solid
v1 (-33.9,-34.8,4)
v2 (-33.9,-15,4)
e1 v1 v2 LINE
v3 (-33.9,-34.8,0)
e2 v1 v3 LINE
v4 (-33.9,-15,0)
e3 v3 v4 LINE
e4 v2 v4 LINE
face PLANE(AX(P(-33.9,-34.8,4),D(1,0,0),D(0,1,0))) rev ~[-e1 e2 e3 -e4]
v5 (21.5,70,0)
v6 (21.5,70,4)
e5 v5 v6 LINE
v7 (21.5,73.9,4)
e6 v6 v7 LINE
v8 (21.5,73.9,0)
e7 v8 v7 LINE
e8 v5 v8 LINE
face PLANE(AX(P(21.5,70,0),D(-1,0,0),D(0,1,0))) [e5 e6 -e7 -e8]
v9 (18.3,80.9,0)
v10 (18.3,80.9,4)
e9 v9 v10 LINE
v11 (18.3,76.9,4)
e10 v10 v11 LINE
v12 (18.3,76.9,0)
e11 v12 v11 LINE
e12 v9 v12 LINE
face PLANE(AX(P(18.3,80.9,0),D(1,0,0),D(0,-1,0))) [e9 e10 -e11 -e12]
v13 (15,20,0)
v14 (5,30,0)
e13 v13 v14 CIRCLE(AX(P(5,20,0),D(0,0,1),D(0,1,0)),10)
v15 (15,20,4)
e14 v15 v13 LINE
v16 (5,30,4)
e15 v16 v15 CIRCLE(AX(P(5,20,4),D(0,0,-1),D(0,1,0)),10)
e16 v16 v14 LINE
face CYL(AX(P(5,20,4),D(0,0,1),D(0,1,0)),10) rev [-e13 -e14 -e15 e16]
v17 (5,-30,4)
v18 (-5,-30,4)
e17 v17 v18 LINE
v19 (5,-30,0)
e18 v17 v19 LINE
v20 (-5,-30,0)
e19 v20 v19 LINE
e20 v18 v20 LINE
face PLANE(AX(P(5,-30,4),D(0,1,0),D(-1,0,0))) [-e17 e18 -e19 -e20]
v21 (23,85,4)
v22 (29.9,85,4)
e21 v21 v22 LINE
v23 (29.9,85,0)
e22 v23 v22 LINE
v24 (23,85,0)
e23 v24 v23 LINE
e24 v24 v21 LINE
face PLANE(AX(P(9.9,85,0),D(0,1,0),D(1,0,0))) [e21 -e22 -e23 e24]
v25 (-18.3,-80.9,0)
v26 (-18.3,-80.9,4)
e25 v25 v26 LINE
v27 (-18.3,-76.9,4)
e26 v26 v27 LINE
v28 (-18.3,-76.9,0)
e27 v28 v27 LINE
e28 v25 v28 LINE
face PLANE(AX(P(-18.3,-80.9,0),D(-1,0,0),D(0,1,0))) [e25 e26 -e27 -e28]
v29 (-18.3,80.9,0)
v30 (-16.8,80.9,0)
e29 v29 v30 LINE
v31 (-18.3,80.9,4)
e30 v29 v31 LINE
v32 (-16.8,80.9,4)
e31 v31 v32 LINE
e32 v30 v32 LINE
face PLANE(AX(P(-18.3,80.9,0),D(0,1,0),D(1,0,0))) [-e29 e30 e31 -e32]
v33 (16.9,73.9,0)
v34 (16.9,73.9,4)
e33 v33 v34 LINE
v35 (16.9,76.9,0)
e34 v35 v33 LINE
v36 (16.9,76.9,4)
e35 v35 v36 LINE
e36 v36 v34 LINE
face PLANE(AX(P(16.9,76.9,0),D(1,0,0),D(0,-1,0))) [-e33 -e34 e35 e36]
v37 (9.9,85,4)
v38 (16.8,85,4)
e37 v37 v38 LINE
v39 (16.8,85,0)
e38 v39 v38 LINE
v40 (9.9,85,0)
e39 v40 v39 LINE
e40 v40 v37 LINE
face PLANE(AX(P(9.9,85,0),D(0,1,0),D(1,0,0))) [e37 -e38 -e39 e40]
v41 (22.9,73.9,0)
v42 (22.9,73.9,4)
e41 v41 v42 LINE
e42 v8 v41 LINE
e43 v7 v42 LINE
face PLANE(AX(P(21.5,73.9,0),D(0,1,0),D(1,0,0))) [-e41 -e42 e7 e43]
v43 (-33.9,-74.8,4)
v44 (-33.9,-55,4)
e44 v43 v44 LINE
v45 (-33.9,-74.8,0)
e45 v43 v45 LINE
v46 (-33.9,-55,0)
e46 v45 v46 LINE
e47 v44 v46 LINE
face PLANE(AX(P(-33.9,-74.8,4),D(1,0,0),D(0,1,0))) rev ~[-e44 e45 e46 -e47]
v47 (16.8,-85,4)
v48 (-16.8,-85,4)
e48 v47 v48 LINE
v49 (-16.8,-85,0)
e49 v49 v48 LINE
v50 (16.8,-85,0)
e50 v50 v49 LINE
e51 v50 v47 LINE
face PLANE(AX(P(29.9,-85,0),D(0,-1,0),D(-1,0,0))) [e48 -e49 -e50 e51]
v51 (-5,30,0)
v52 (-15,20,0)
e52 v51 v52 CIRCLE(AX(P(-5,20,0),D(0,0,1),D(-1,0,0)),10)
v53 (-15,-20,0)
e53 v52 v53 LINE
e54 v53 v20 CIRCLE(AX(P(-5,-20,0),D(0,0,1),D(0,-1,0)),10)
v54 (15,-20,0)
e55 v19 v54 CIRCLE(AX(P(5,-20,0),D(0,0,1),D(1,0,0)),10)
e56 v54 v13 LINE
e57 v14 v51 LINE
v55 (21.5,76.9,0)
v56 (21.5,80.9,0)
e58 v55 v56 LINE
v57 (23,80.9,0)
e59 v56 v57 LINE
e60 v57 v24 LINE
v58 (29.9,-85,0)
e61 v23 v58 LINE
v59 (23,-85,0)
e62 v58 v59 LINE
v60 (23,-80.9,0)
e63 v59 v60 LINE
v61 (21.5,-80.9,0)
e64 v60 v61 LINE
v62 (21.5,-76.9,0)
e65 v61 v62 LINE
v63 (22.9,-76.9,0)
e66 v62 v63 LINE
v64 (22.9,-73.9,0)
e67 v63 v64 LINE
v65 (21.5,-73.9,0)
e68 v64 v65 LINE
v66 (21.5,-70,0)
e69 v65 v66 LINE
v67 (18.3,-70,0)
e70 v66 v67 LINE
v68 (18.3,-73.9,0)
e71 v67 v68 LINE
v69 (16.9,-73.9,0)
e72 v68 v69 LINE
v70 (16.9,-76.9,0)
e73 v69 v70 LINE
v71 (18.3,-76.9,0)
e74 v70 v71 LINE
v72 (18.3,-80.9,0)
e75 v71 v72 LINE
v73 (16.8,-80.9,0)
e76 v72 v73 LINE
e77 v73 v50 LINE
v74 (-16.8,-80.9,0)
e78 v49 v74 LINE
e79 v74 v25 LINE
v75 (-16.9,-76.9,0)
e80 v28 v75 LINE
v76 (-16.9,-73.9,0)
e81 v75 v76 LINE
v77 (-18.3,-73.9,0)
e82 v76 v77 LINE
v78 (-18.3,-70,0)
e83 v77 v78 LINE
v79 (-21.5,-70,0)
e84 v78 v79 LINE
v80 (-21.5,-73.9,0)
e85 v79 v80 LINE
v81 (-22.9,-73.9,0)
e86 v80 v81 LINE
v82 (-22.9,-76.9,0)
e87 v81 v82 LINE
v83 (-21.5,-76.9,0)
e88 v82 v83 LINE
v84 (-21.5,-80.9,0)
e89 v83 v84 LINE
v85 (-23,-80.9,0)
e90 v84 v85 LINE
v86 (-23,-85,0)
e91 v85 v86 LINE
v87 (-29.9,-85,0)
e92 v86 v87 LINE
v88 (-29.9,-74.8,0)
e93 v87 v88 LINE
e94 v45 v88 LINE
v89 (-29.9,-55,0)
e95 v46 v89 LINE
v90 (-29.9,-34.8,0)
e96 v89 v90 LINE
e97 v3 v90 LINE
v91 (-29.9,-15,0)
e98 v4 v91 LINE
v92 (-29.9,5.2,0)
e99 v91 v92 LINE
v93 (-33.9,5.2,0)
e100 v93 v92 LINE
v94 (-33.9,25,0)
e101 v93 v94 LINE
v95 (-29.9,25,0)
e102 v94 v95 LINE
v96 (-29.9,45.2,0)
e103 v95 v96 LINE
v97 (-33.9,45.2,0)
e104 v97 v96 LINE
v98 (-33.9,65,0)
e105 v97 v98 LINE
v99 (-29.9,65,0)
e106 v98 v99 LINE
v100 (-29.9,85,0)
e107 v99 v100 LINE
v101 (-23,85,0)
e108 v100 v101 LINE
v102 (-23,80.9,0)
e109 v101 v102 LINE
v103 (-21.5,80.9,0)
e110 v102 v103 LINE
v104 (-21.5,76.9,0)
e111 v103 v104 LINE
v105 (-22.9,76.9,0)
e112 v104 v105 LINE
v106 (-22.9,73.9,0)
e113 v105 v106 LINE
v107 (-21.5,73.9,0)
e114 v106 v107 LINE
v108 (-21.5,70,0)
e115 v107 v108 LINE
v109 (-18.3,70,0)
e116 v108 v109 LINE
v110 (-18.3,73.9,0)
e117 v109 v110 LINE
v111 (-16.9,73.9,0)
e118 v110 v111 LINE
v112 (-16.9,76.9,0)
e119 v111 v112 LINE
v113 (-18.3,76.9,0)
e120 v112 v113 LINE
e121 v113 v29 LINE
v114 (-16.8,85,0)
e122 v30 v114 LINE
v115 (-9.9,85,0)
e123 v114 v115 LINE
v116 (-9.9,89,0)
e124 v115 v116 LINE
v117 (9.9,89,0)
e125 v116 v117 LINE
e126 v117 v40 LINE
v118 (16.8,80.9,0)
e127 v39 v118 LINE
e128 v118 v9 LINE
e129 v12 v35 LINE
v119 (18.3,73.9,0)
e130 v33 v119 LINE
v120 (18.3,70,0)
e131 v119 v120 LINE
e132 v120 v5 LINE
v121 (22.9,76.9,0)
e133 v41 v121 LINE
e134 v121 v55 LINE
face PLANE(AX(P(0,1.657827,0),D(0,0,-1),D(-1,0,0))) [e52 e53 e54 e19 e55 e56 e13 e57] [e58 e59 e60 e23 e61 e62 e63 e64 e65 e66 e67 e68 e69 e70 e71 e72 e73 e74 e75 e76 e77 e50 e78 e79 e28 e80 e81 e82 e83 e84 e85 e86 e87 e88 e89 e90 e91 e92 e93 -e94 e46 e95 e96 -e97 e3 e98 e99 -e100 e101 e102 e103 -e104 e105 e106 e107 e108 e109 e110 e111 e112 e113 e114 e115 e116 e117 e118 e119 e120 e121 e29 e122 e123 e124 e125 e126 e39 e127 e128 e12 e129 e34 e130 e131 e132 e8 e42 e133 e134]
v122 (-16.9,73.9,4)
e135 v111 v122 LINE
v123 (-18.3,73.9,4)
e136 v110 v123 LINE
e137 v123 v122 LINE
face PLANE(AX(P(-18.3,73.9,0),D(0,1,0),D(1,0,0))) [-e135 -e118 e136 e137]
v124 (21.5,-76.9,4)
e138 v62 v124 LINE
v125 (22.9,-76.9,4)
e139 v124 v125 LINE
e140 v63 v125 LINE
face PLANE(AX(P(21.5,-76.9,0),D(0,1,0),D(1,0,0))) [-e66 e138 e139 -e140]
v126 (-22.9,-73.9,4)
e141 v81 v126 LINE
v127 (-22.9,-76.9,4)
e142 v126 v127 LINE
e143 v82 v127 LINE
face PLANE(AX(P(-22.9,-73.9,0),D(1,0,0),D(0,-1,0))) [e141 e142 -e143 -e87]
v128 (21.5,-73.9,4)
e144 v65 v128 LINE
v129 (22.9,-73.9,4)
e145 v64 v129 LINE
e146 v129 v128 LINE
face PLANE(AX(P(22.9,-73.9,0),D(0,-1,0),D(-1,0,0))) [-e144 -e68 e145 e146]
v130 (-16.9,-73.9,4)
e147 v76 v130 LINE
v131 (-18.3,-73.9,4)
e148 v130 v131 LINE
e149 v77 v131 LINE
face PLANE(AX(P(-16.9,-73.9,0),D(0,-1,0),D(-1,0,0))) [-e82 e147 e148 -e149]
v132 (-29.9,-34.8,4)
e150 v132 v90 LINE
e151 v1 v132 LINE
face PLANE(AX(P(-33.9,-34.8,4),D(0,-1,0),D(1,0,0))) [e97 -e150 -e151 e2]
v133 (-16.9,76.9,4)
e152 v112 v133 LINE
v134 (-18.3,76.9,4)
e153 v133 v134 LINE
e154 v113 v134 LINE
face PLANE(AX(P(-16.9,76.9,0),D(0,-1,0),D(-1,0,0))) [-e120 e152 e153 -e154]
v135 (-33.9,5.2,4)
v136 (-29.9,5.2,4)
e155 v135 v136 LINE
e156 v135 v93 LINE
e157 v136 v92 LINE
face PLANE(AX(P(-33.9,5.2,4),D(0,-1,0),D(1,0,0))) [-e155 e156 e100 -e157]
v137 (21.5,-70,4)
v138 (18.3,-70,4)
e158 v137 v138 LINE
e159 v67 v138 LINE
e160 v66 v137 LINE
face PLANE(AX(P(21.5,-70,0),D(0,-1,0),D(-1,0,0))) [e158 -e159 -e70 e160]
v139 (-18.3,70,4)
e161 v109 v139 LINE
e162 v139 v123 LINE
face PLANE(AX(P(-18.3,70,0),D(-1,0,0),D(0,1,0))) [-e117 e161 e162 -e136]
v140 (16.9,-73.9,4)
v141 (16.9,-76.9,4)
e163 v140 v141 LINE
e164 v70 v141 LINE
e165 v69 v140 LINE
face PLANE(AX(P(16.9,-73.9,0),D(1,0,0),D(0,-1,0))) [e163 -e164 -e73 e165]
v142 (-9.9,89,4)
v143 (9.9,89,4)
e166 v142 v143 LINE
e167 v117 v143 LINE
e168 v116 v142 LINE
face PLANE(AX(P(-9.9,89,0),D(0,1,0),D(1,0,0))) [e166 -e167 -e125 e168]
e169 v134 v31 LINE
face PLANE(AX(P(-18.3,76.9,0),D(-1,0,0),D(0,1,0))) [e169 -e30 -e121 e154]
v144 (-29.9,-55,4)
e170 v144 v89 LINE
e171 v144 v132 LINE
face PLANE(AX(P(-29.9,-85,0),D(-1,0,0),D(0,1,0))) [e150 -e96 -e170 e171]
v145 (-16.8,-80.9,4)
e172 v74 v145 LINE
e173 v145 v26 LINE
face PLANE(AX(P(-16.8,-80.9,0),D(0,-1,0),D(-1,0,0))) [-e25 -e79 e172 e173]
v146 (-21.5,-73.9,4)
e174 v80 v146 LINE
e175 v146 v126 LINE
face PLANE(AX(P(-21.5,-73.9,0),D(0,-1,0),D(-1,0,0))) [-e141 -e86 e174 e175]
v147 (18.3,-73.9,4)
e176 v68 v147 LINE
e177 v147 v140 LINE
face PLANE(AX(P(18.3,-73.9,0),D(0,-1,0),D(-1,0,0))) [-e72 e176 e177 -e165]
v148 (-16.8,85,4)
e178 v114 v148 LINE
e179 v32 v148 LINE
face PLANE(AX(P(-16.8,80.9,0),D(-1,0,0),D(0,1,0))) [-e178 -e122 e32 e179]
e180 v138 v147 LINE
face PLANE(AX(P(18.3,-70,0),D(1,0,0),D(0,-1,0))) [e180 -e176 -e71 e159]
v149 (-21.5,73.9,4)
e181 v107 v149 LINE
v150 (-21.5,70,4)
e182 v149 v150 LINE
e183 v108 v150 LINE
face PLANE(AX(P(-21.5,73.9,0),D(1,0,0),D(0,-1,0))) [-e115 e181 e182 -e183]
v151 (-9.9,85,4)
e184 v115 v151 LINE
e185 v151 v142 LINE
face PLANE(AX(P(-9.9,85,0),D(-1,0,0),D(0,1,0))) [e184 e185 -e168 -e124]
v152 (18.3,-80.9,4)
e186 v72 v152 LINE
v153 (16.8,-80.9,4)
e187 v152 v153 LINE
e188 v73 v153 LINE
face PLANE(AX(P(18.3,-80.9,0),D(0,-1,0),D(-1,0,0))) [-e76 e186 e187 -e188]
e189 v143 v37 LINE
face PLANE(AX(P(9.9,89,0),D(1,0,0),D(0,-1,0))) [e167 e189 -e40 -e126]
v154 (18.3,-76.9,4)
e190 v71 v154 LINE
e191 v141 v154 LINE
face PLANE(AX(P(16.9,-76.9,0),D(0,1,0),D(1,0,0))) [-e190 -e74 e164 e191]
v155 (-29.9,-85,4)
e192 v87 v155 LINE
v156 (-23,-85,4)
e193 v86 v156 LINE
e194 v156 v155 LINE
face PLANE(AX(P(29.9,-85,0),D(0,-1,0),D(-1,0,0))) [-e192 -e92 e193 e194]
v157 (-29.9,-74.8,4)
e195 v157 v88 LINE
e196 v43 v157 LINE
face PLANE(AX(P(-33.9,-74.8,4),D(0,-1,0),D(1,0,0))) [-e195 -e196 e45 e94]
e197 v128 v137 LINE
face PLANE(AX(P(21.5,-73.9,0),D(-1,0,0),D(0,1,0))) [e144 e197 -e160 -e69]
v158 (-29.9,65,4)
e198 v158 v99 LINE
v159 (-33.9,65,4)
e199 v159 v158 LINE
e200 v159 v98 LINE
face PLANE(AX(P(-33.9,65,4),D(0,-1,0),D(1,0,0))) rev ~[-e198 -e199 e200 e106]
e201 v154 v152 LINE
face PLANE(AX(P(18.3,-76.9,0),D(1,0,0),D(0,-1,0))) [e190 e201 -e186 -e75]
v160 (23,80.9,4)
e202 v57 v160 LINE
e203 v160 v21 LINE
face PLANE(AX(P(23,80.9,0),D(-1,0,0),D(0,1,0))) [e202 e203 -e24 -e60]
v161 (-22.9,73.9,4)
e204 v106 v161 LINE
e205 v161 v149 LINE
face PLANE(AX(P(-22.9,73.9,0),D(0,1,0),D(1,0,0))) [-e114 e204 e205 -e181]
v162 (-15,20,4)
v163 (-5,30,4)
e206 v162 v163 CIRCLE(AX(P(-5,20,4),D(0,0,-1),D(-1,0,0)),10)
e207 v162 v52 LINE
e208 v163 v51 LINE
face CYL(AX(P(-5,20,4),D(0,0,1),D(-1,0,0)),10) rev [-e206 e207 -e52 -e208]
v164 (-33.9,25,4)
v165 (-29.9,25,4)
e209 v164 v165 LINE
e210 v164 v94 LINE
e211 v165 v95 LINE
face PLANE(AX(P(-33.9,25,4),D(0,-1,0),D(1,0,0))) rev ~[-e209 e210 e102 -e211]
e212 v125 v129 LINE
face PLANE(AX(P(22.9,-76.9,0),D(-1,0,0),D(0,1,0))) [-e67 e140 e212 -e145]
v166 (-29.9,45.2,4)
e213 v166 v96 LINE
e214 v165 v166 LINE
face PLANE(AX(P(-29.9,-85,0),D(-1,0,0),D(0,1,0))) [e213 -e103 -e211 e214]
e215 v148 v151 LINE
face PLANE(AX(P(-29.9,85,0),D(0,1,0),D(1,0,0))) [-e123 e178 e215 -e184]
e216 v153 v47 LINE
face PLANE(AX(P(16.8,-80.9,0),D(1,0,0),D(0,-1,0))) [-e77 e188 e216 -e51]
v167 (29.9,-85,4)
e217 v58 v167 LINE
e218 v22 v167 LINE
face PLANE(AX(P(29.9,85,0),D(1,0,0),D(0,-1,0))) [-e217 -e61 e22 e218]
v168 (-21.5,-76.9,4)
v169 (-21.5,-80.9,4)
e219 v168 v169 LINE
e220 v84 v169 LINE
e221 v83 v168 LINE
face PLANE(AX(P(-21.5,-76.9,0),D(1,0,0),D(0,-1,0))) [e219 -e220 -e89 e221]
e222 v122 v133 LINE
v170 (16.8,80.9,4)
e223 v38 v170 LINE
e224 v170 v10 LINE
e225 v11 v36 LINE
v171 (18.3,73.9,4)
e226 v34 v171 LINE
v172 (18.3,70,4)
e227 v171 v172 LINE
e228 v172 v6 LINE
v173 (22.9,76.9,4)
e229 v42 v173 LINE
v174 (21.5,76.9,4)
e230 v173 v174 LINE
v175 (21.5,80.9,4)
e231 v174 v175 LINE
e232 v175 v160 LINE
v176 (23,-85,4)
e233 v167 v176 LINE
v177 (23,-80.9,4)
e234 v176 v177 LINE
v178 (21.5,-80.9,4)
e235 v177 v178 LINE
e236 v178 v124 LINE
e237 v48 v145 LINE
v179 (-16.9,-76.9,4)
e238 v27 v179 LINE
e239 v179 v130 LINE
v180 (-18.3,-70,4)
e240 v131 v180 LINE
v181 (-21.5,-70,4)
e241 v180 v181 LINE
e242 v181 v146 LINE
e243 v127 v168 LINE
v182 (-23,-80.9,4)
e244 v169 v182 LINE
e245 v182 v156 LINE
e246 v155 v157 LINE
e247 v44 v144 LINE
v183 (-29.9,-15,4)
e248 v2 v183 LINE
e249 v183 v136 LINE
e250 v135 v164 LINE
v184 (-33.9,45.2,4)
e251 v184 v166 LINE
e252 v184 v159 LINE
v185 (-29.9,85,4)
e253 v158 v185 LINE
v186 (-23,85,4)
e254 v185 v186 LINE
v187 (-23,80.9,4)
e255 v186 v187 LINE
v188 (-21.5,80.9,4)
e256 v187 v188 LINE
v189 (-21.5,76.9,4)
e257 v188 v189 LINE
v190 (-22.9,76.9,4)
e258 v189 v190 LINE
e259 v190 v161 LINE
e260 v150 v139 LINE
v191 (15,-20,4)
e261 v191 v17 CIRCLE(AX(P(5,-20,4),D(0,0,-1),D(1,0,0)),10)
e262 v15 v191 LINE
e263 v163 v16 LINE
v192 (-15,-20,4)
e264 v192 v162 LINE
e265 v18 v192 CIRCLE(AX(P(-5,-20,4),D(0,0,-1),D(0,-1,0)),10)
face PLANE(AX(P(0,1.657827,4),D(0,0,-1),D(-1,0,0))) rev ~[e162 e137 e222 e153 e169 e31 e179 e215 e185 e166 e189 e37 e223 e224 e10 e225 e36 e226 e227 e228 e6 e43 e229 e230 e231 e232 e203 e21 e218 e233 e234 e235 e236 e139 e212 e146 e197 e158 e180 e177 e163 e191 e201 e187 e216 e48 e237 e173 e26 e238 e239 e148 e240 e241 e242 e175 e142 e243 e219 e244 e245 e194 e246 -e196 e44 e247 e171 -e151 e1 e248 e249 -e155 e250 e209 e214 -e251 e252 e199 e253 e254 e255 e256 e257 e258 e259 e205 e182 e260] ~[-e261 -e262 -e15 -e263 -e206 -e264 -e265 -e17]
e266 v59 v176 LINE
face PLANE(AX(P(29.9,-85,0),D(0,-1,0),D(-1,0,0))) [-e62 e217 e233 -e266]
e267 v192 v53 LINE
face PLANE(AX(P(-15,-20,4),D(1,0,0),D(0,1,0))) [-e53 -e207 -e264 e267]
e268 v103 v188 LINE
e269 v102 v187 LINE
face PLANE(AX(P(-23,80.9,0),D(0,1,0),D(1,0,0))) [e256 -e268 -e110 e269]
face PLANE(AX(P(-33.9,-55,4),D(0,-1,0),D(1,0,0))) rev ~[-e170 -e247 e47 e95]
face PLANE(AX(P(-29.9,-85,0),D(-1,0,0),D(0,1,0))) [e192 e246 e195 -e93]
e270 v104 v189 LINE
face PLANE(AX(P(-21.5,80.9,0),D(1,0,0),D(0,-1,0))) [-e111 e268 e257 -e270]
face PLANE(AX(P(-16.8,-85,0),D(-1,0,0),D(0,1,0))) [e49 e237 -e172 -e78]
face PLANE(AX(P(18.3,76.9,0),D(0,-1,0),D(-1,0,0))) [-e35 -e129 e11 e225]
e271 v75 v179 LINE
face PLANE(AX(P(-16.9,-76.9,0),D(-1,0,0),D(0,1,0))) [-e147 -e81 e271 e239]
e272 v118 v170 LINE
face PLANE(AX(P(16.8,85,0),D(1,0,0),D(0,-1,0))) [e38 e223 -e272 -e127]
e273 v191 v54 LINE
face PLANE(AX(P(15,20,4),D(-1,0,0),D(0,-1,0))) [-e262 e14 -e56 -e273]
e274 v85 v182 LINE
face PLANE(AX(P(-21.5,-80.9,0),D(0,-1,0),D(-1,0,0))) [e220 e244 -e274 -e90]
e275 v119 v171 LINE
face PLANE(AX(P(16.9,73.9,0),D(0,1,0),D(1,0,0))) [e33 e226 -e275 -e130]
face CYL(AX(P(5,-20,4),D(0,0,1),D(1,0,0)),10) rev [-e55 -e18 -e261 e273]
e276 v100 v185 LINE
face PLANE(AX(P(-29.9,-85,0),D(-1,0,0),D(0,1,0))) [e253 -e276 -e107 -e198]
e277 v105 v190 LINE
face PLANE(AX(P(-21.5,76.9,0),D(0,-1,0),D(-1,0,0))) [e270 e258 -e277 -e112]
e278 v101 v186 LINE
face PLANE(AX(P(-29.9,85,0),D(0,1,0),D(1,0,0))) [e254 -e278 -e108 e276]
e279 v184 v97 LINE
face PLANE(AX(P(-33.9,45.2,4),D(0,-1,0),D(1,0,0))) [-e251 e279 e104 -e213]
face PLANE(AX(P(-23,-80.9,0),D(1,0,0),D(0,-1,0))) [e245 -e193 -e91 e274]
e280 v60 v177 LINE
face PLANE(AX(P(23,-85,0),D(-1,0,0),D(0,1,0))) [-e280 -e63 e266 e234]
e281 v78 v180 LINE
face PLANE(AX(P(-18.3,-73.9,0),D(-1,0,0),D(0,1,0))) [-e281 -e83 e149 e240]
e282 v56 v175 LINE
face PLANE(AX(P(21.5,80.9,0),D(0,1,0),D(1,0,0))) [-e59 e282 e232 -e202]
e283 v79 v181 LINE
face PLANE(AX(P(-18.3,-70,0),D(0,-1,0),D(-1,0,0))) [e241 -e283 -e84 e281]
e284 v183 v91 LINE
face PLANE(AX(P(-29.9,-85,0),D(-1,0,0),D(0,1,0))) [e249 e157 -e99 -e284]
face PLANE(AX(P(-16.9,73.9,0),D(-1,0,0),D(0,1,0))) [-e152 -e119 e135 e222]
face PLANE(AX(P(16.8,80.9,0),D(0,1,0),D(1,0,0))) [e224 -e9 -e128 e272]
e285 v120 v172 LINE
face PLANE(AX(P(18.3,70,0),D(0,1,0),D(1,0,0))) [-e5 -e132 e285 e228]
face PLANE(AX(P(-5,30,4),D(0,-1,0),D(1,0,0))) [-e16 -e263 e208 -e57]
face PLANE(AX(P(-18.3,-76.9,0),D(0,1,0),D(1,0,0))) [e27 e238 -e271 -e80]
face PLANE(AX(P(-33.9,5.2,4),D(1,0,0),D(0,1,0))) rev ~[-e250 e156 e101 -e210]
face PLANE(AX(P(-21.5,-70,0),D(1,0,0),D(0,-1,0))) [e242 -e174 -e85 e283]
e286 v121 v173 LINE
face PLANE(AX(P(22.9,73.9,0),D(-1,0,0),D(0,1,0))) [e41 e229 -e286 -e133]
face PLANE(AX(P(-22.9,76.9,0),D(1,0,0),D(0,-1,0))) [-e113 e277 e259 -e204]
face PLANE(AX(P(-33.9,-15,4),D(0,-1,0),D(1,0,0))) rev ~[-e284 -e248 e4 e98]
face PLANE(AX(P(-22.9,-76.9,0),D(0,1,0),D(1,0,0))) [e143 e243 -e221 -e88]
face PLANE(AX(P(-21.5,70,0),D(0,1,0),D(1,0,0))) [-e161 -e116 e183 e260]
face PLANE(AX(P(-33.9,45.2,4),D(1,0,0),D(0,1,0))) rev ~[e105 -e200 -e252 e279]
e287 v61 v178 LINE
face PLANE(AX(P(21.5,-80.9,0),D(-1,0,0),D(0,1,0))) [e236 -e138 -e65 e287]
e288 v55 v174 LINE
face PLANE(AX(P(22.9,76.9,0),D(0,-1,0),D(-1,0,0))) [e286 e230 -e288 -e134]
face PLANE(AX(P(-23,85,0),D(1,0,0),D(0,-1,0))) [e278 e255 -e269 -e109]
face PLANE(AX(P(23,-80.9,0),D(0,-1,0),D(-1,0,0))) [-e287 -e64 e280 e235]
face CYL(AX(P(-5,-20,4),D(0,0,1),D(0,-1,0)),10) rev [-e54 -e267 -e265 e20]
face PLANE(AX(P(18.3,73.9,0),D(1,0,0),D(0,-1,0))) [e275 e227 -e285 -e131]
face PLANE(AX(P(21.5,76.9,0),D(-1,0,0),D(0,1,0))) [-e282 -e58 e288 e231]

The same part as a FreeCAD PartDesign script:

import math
import FreeCAD as App
import Part
import Sketcher
from FreeCAD import Vector

doc = App.newDocument("Part")
body = doc.addObject("PartDesign::Body", "Body")

sketch1 = body.newObject("Sketcher::SketchObject", "Sketch")
sketch1.AttachmentSupport = (doc.getObject("XY_Plane"), [""])
sketch1.MapMode = "FlatFace"
sketch1.addGeometry(Part.LineSegment(Vector(-9.9, 89, 0), Vector(-9.9, 85, 0)), False)
sketch1.addGeometry(Part.LineSegment(Vector(-9.9, 85, 0), Vector(-29.9, 85, 0)), False)
sketch1.addGeometry(Part.LineSegment(Vector(-29.9, 85, 0), Vector(-29.9, -85, 0)), False)
sketch1.addGeometry(Part.LineSegment(Vector(-29.9, -85, 0), Vector(29.9, -85, 0)), False)
sketch1.addGeometry(Part.LineSegment(Vector(29.9, -85, 0), Vector(29.9, 85, 0)), False)
sketch1.addGeometry(Part.LineSegment(Vector(29.9, 85, 0), Vector(9.9, 85, 0)), False)
sketch1.addGeometry(Part.LineSegment(Vector(9.9, 85, 0), Vector(9.9, 89, 0)), False)
sketch1.addGeometry(Part.LineSegment(Vector(9.9, 89, 0), Vector(-9.9, 89, 0)), False)
sketch1.addConstraint(Sketcher.Constraint("Coincident", 0, 2, 1, 1))
sketch1.addConstraint(Sketcher.Constraint("Coincident", 1, 2, 2, 1))
sketch1.addConstraint(Sketcher.Constraint("Coincident", 2, 2, 3, 1))
sketch1.addConstraint(Sketcher.Constraint("Coincident", 3, 2, 4, 1))
sketch1.addConstraint(Sketcher.Constraint("Coincident", 4, 2, 5, 1))
sketch1.addConstraint(Sketcher.Constraint("Coincident", 5, 2, 6, 1))
sketch1.addConstraint(Sketcher.Constraint("Coincident", 6, 2, 7, 1))
sketch1.addConstraint(Sketcher.Constraint("Coincident", 7, 2, 0, 1))
sketch1.addConstraint(Sketcher.Constraint("Vertical", 0))
sketch1.addConstraint(Sketcher.Constraint("Horizontal", 1))
sketch1.addConstraint(Sketcher.Constraint("Vertical", 2))
sketch1.addConstraint(Sketcher.Constraint("Horizontal", 3))
sketch1.addConstraint(Sketcher.Constraint("Vertical", 4))
sketch1.addConstraint(Sketcher.Constraint("Horizontal", 5))
sketch1.addConstraint(Sketcher.Constraint("Vertical", 6))
sketch1.addConstraint(Sketcher.Constraint("Horizontal", 7))
sketch1.addConstraint(Sketcher.Constraint("Symmetric", 1, 2, 3, 2, -1, 1))
sketch1.addConstraint(Sketcher.Constraint("Symmetric", 0, 2, 5, 2, -2))
sketch1.addConstraint(Sketcher.Constraint("DistanceX", 1, 2, 1, 1, 20.0))
sketch1.addConstraint(Sketcher.Constraint("DistanceY", 0, 2, 0, 1, 4.0))
sketch1.addConstraint(Sketcher.Constraint("DistanceY", 2, 2, 2, 1, 170.0))
sketch1.addConstraint(Sketcher.Constraint("DistanceX", 3, 1, 3, 2, 59.8))
pad1 = body.newObject("PartDesign::Pad", "Pad")
pad1.Profile = sketch1
pad1.Length = 4

sketch2 = body.newObject("Sketcher::SketchObject", "Sketch001")
sketch2.AttachmentSupport = (doc.getObject("XY_Plane"), [""])
sketch2.MapMode = "FlatFace"
sketch2.addGeometry(Part.LineSegment(Vector(-23, 80.9, 0), Vector(-23, 85, 0)), False)
sketch2.addGeometry(Part.LineSegment(Vector(-23, 85, 0), Vector(-16.8, 85, 0)), False)
sketch2.addGeometry(Part.LineSegment(Vector(-16.8, 85, 0), Vector(-16.8, 80.9, 0)), False)
sketch2.addGeometry(Part.LineSegment(Vector(-16.8, 80.9, 0), Vector(-18.3, 80.9, 0)), False)
sketch2.addGeometry(Part.LineSegment(Vector(-18.3, 80.9, 0), Vector(-18.3, 76.9, 0)), False)
sketch2.addGeometry(Part.LineSegment(Vector(-18.3, 76.9, 0), Vector(-16.9, 76.9, 0)), False)
sketch2.addGeometry(Part.LineSegment(Vector(-16.9, 76.9, 0), Vector(-16.9, 73.9, 0)), False)
sketch2.addGeometry(Part.LineSegment(Vector(-16.9, 73.9, 0), Vector(-18.3, 73.9, 0)), False)
sketch2.addGeometry(Part.LineSegment(Vector(-18.3, 73.9, 0), Vector(-18.3, 70, 0)), False)
sketch2.addGeometry(Part.LineSegment(Vector(-18.3, 70, 0), Vector(-21.5, 70, 0)), False)
sketch2.addGeometry(Part.LineSegment(Vector(-21.5, 70, 0), Vector(-21.5, 73.9, 0)), False)
sketch2.addGeometry(Part.LineSegment(Vector(-21.5, 73.9, 0), Vector(-22.9, 73.9, 0)), False)
sketch2.addGeometry(Part.LineSegment(Vector(-22.9, 73.9, 0), Vector(-22.9, 76.9, 0)), False)
sketch2.addGeometry(Part.LineSegment(Vector(-22.9, 76.9, 0), Vector(-21.5, 76.9, 0)), False)
sketch2.addGeometry(Part.LineSegment(Vector(-21.5, 76.9, 0), Vector(-21.5, 80.9, 0)), False)
sketch2.addGeometry(Part.LineSegment(Vector(-21.5, 80.9, 0), Vector(-23, 80.9, 0)), False)
sketch2.addGeometry(Part.LineSegment(Vector(16.8, 80.9, 0), Vector(16.8, 85, 0)), False)
sketch2.addGeometry(Part.LineSegment(Vector(16.8, 85, 0), Vector(23, 85, 0)), False)
sketch2.addGeometry(Part.LineSegment(Vector(23, 85, 0), Vector(23, 80.9, 0)), False)
sketch2.addGeometry(Part.LineSegment(Vector(23, 80.9, 0), Vector(21.5, 80.9, 0)), False)
sketch2.addGeometry(Part.LineSegment(Vector(21.5, 80.9, 0), Vector(21.5, 76.9, 0)), False)
sketch2.addGeometry(Part.LineSegment(Vector(21.5, 76.9, 0), Vector(22.9, 76.9, 0)), False)
sketch2.addGeometry(Part.LineSegment(Vector(22.9, 76.9, 0), Vector(22.9, 73.9, 0)), False)
sketch2.addGeometry(Part.LineSegment(Vector(22.9, 73.9, 0), Vector(21.5, 73.9, 0)), False)
sketch2.addGeometry(Part.LineSegment(Vector(21.5, 73.9, 0), Vector(21.5, 70, 0)), False)
sketch2.addGeometry(Part.LineSegment(Vector(21.5, 70, 0), Vector(18.3, 70, 0)), False)
sketch2.addGeometry(Part.LineSegment(Vector(18.3, 70, 0), Vector(18.3, 73.9, 0)), False)
sketch2.addGeometry(Part.LineSegment(Vector(18.3, 73.9, 0), Vector(16.9, 73.9, 0)), False)
sketch2.addGeometry(Part.LineSegment(Vector(16.9, 73.9, 0), Vector(16.9, 76.9, 0)), False)
sketch2.addGeometry(Part.LineSegment(Vector(16.9, 76.9, 0), Vector(18.3, 76.9, 0)), False)
sketch2.addGeometry(Part.LineSegment(Vector(18.3, 76.9, 0), Vector(18.3, 80.9, 0)), False)
sketch2.addGeometry(Part.LineSegment(Vector(18.3, 80.9, 0), Vector(16.8, 80.9, 0)), False)
sketch2.addGeometry(Part.LineSegment(Vector(23, -80.9, 0), Vector(23, -85, 0)), False)
sketch2.addGeometry(Part.LineSegment(Vector(23, -85, 0), Vector(16.8, -85, 0)), False)
sketch2.addGeometry(Part.LineSegment(Vector(16.8, -85, 0), Vector(16.8, -80.9, 0)), False)
sketch2.addGeometry(Part.LineSegment(Vector(16.8, -80.9, 0), Vector(18.3, -80.9, 0)), False)
sketch2.addGeometry(Part.LineSegment(Vector(18.3, -80.9, 0), Vector(18.3, -76.9, 0)), False)
sketch2.addGeometry(Part.LineSegment(Vector(18.3, -76.9, 0), Vector(16.9, -76.9, 0)), False)
sketch2.addGeometry(Part.LineSegment(Vector(16.9, -76.9, 0), Vector(16.9, -73.9, 0)), False)
sketch2.addGeometry(Part.LineSegment(Vector(16.9, -73.9, 0), Vector(18.3, -73.9, 0)), False)
sketch2.addGeometry(Part.LineSegment(Vector(18.3, -73.9, 0), Vector(18.3, -70, 0)), False)
sketch2.addGeometry(Part.LineSegment(Vector(18.3, -70, 0), Vector(21.5, -70, 0)), False)
sketch2.addGeometry(Part.LineSegment(Vector(21.5, -70, 0), Vector(21.5, -73.9, 0)), False)
sketch2.addGeometry(Part.LineSegment(Vector(21.5, -73.9, 0), Vector(22.9, -73.9, 0)), False)
sketch2.addGeometry(Part.LineSegment(Vector(22.9, -73.9, 0), Vector(22.9, -76.9, 0)), False)
sketch2.addGeometry(Part.LineSegment(Vector(22.9, -76.9, 0), Vector(21.5, -76.9, 0)), False)
sketch2.addGeometry(Part.LineSegment(Vector(21.5, -76.9, 0), Vector(21.5, -80.9, 0)), False)
sketch2.addGeometry(Part.LineSegment(Vector(21.5, -80.9, 0), Vector(23, -80.9, 0)), False)
sketch2.addGeometry(Part.LineSegment(Vector(-16.8, -80.9, 0), Vector(-16.8, -85, 0)), False)
sketch2.addGeometry(Part.LineSegment(Vector(-16.8, -85, 0), Vector(-23, -85, 0)), False)
sketch2.addGeometry(Part.LineSegment(Vector(-23, -85, 0), Vector(-23, -80.9, 0)), False)
sketch2.addGeometry(Part.LineSegment(Vector(-23, -80.9, 0), Vector(-21.5, -80.9, 0)), False)
sketch2.addGeometry(Part.LineSegment(Vector(-21.5, -80.9, 0), Vector(-21.5, -76.9, 0)), False)
sketch2.addGeometry(Part.LineSegment(Vector(-21.5, -76.9, 0), Vector(-22.9, -76.9, 0)), False)
sketch2.addGeometry(Part.LineSegment(Vector(-22.9, -76.9, 0), Vector(-22.9, -73.9, 0)), False)
sketch2.addGeometry(Part.LineSegment(Vector(-22.9, -73.9, 0), Vector(-21.5, -73.9, 0)), False)
sketch2.addGeometry(Part.LineSegment(Vector(-21.5, -73.9, 0), Vector(-21.5, -70, 0)), False)
sketch2.addGeometry(Part.LineSegment(Vector(-21.5, -70, 0), Vector(-18.3, -70, 0)), False)
sketch2.addGeometry(Part.LineSegment(Vector(-18.3, -70, 0), Vector(-18.3, -73.9, 0)), False)
sketch2.addGeometry(Part.LineSegment(Vector(-18.3, -73.9, 0), Vector(-16.9, -73.9, 0)), False)
sketch2.addGeometry(Part.LineSegment(Vector(-16.9, -73.9, 0), Vector(-16.9, -76.9, 0)), False)
sketch2.addGeometry(Part.LineSegment(Vector(-16.9, -76.9, 0), Vector(-18.3, -76.9, 0)), False)
sketch2.addGeometry(Part.LineSegment(Vector(-18.3, -76.9, 0), Vector(-18.3, -80.9, 0)), False)
sketch2.addGeometry(Part.LineSegment(Vector(-18.3, -80.9, 0), Vector(-16.8, -80.9, 0)), False)
sketch2.addConstraint(Sketcher.Constraint("Coincident", 0, 2, 1, 1))
sketch2.addConstraint(Sketcher.Constraint("Coincident", 1, 2, 2, 1))
sketch2.addConstraint(Sketcher.Constraint("Coincident", 2, 2, 3, 1))
sketch2.addConstraint(Sketcher.Constraint("Coincident", 3, 2, 4, 1))
sketch2.addConstraint(Sketcher.Constraint("Coincident", 4, 2, 5, 1))
sketch2.addConstraint(Sketcher.Constraint("Coincident", 5, 2, 6, 1))
sketch2.addConstraint(Sketcher.Constraint("Coincident", 6, 2, 7, 1))
sketch2.addConstraint(Sketcher.Constraint("Coincident", 7, 2, 8, 1))
sketch2.addConstraint(Sketcher.Constraint("Coincident", 8, 2, 9, 1))
sketch2.addConstraint(Sketcher.Constraint("Coincident", 9, 2, 10, 1))
sketch2.addConstraint(Sketcher.Constraint("Coincident", 10, 2, 11, 1))
sketch2.addConstraint(Sketcher.Constraint("Coincident", 11, 2, 12, 1))
sketch2.addConstraint(Sketcher.Constraint("Coincident", 12, 2, 13, 1))
sketch2.addConstraint(Sketcher.Constraint("Coincident", 13, 2, 14, 1))
sketch2.addConstraint(Sketcher.Constraint("Coincident", 14, 2, 15, 1))
sketch2.addConstraint(Sketcher.Constraint("Coincident", 15, 2, 0, 1))
sketch2.addConstraint(Sketcher.Constraint("Coincident", 16, 2, 17, 1))
sketch2.addConstraint(Sketcher.Constraint("Coincident", 17, 2, 18, 1))
sketch2.addConstraint(Sketcher.Constraint("Coincident", 18, 2, 19, 1))
sketch2.addConstraint(Sketcher.Constraint("Coincident", 19, 2, 20, 1))
sketch2.addConstraint(Sketcher.Constraint("Coincident", 20, 2, 21, 1))
sketch2.addConstraint(Sketcher.Constraint("Coincident", 21, 2, 22, 1))
sketch2.addConstraint(Sketcher.Constraint("Coincident", 22, 2, 23, 1))
sketch2.addConstraint(Sketcher.Constraint("Coincident", 23, 2, 24, 1))
sketch2.addConstraint(Sketcher.Constraint("Coincident", 24, 2, 25, 1))
sketch2.addConstraint(Sketcher.Constraint("Coincident", 25, 2, 26, 1))
sketch2.addConstraint(Sketcher.Constraint("Coincident", 26, 2, 27, 1))
sketch2.addConstraint(Sketcher.Constraint("Coincident", 27, 2, 28, 1))
sketch2.addConstraint(Sketcher.Constraint("Coincident", 28, 2, 29, 1))
sketch2.addConstraint(Sketcher.Constraint("Coincident", 29, 2, 30, 1))
sketch2.addConstraint(Sketcher.Constraint("Coincident", 30, 2, 31, 1))
sketch2.addConstraint(Sketcher.Constraint("Coincident", 31, 2, 16, 1))
sketch2.addConstraint(Sketcher.Constraint("Coincident", 32, 2, 33, 1))
sketch2.addConstraint(Sketcher.Constraint("Coincident", 33, 2, 34, 1))
sketch2.addConstraint(Sketcher.Constraint("Coincident", 34, 2, 35, 1))
sketch2.addConstraint(Sketcher.Constraint("Coincident", 35, 2, 36, 1))
sketch2.addConstraint(Sketcher.Constraint("Coincident", 36, 2, 37, 1))
sketch2.addConstraint(Sketcher.Constraint("Coincident", 37, 2, 38, 1))
sketch2.addConstraint(Sketcher.Constraint("Coincident", 38, 2, 39, 1))
sketch2.addConstraint(Sketcher.Constraint("Coincident", 39, 2, 40, 1))
sketch2.addConstraint(Sketcher.Constraint("Coincident", 40, 2, 41, 1))
sketch2.addConstraint(Sketcher.Constraint("Coincident", 41, 2, 42, 1))
sketch2.addConstraint(Sketcher.Constraint("Coincident", 42, 2, 43, 1))
sketch2.addConstraint(Sketcher.Constraint("Coincident", 43, 2, 44, 1))
sketch2.addConstraint(Sketcher.Constraint("Coincident", 44, 2, 45, 1))
sketch2.addConstraint(Sketcher.Constraint("Coincident", 45, 2, 46, 1))
sketch2.addConstraint(Sketcher.Constraint("Coincident", 46, 2, 47, 1))
sketch2.addConstraint(Sketcher.Constraint("Coincident", 47, 2, 32, 1))
sketch2.addConstraint(Sketcher.Constraint("Coincident", 48, 2, 49, 1))
sketch2.addConstraint(Sketcher.Constraint("Coincident", 49, 2, 50, 1))
sketch2.addConstraint(Sketcher.Constraint("Coincident", 50, 2, 51, 1))
sketch2.addConstraint(Sketcher.Constraint("Coincident", 51, 2, 52, 1))
sketch2.addConstraint(Sketcher.Constraint("Coincident", 52, 2, 53, 1))
sketch2.addConstraint(Sketcher.Constraint("Coincident", 53, 2, 54, 1))
sketch2.addConstraint(Sketcher.Constraint("Coincident", 54, 2, 55, 1))
sketch2.addConstraint(Sketcher.Constraint("Coincident", 55, 2, 56, 1))
sketch2.addConstraint(Sketcher.Constraint("Coincident", 56, 2, 57, 1))
sketch2.addConstraint(Sketcher.Constraint("Coincident", 57, 2, 58, 1))
sketch2.addConstraint(Sketcher.Constraint("Coincident", 58, 2, 59, 1))
sketch2.addConstraint(Sketcher.Constraint("Coincident", 59, 2, 60, 1))
sketch2.addConstraint(Sketcher.Constraint("Coincident", 60, 2, 61, 1))
sketch2.addConstraint(Sketcher.Constraint("Coincident", 61, 2, 62, 1))
sketch2.addConstraint(Sketcher.Constraint("Coincident", 62, 2, 63, 1))
sketch2.addConstraint(Sketcher.Constraint("Coincident", 63, 2, 48, 1))
sketch2.addConstraint(Sketcher.Constraint("Vertical", 0))
sketch2.addConstraint(Sketcher.Constraint("Horizontal", 1))
sketch2.addConstraint(Sketcher.Constraint("Vertical", 2))
sketch2.addConstraint(Sketcher.Constraint("Horizontal", 3))
sketch2.addConstraint(Sketcher.Constraint("Vertical", 4))
sketch2.addConstraint(Sketcher.Constraint("Horizontal", 5))
sketch2.addConstraint(Sketcher.Constraint("Vertical", 6))
sketch2.addConstraint(Sketcher.Constraint("Horizontal", 7))
sketch2.addConstraint(Sketcher.Constraint("Vertical", 8))
sketch2.addConstraint(Sketcher.Constraint("Horizontal", 9))
sketch2.addConstraint(Sketcher.Constraint("Vertical", 10))
sketch2.addConstraint(Sketcher.Constraint("Horizontal", 11))
sketch2.addConstraint(Sketcher.Constraint("Vertical", 12))
sketch2.addConstraint(Sketcher.Constraint("Horizontal", 13))
sketch2.addConstraint(Sketcher.Constraint("Vertical", 14))
sketch2.addConstraint(Sketcher.Constraint("Horizontal", 15))
sketch2.addConstraint(Sketcher.Constraint("Vertical", 16))
sketch2.addConstraint(Sketcher.Constraint("Horizontal", 17))
sketch2.addConstraint(Sketcher.Constraint("Vertical", 18))
sketch2.addConstraint(Sketcher.Constraint("Horizontal", 19))
sketch2.addConstraint(Sketcher.Constraint("Vertical", 20))
sketch2.addConstraint(Sketcher.Constraint("Horizontal", 21))
sketch2.addConstraint(Sketcher.Constraint("Vertical", 22))
sketch2.addConstraint(Sketcher.Constraint("Horizontal", 23))
sketch2.addConstraint(Sketcher.Constraint("Vertical", 24))
sketch2.addConstraint(Sketcher.Constraint("Horizontal", 25))
sketch2.addConstraint(Sketcher.Constraint("Vertical", 26))
sketch2.addConstraint(Sketcher.Constraint("Horizontal", 27))
sketch2.addConstraint(Sketcher.Constraint("Vertical", 28))
sketch2.addConstraint(Sketcher.Constraint("Horizontal", 29))
sketch2.addConstraint(Sketcher.Constraint("Vertical", 30))
sketch2.addConstraint(Sketcher.Constraint("Horizontal", 31))
sketch2.addConstraint(Sketcher.Constraint("Vertical", 32))
sketch2.addConstraint(Sketcher.Constraint("Horizontal", 33))
sketch2.addConstraint(Sketcher.Constraint("Vertical", 34))
sketch2.addConstraint(Sketcher.Constraint("Horizontal", 35))
sketch2.addConstraint(Sketcher.Constraint("Vertical", 36))
sketch2.addConstraint(Sketcher.Constraint("Horizontal", 37))
sketch2.addConstraint(Sketcher.Constraint("Vertical", 38))
sketch2.addConstraint(Sketcher.Constraint("Horizontal", 39))
sketch2.addConstraint(Sketcher.Constraint("Vertical", 40))
sketch2.addConstraint(Sketcher.Constraint("Horizontal", 41))
sketch2.addConstraint(Sketcher.Constraint("Vertical", 42))
sketch2.addConstraint(Sketcher.Constraint("Horizontal", 43))
sketch2.addConstraint(Sketcher.Constraint("Vertical", 44))
sketch2.addConstraint(Sketcher.Constraint("Horizontal", 45))
sketch2.addConstraint(Sketcher.Constraint("Vertical", 46))
sketch2.addConstraint(Sketcher.Constraint("Horizontal", 47))
sketch2.addConstraint(Sketcher.Constraint("Vertical", 48))
sketch2.addConstraint(Sketcher.Constraint("Horizontal", 49))
sketch2.addConstraint(Sketcher.Constraint("Vertical", 50))
sketch2.addConstraint(Sketcher.Constraint("Horizontal", 51))
sketch2.addConstraint(Sketcher.Constraint("Vertical", 52))
sketch2.addConstraint(Sketcher.Constraint("Horizontal", 53))
sketch2.addConstraint(Sketcher.Constraint("Vertical", 54))
sketch2.addConstraint(Sketcher.Constraint("Horizontal", 55))
sketch2.addConstraint(Sketcher.Constraint("Vertical", 56))
sketch2.addConstraint(Sketcher.Constraint("Horizontal", 57))
sketch2.addConstraint(Sketcher.Constraint("Vertical", 58))
sketch2.addConstraint(Sketcher.Constraint("Horizontal", 59))
sketch2.addConstraint(Sketcher.Constraint("Vertical", 60))
sketch2.addConstraint(Sketcher.Constraint("Horizontal", 61))
sketch2.addConstraint(Sketcher.Constraint("Vertical", 62))
sketch2.addConstraint(Sketcher.Constraint("Horizontal", 63))
sketch2.addConstraint(Sketcher.Constraint("Symmetric", 0, 2, 32, 2, -1, 1))
sketch2.addConstraint(Sketcher.Constraint("Symmetric", 2, 2, 34, 2, -1, 1))
sketch2.addConstraint(Sketcher.Constraint("Symmetric", 4, 2, 36, 2, -1, 1))
sketch2.addConstraint(Sketcher.Constraint("Symmetric", 6, 2, 38, 2, -1, 1))
sketch2.addConstraint(Sketcher.Constraint("Symmetric", 8, 2, 40, 2, -1, 1))
sketch2.addConstraint(Sketcher.Constraint("Symmetric", 10, 2, 42, 2, -1, 1))
sketch2.addConstraint(Sketcher.Constraint("Symmetric", 12, 2, 44, 2, -1, 1))
sketch2.addConstraint(Sketcher.Constraint("Symmetric", 14, 2, 46, 2, -1, 1))
sketch2.addConstraint(Sketcher.Constraint("Symmetric", 16, 2, 48, 2, -1, 1))
sketch2.addConstraint(Sketcher.Constraint("Symmetric", 18, 2, 50, 2, -1, 1))
sketch2.addConstraint(Sketcher.Constraint("Symmetric", 20, 2, 52, 2, -1, 1))
sketch2.addConstraint(Sketcher.Constraint("Symmetric", 22, 2, 54, 2, -1, 1))
sketch2.addConstraint(Sketcher.Constraint("Symmetric", 24, 2, 56, 2, -1, 1))
sketch2.addConstraint(Sketcher.Constraint("Symmetric", 26, 2, 58, 2, -1, 1))
sketch2.addConstraint(Sketcher.Constraint("Symmetric", 28, 2, 60, 2, -1, 1))
sketch2.addConstraint(Sketcher.Constraint("Symmetric", 30, 2, 62, 2, -1, 1))
sketch2.addConstraint(Sketcher.Constraint("Symmetric", 1, 2, 16, 2, -2))
sketch2.addConstraint(Sketcher.Constraint("Symmetric", 15, 2, 18, 2, -2))
sketch2.addConstraint(Sketcher.Constraint("Symmetric", 13, 2, 20, 2, -2))
sketch2.addConstraint(Sketcher.Constraint("Symmetric", 11, 2, 22, 2, -2))
sketch2.addConstraint(Sketcher.Constraint("Symmetric", 9, 2, 24, 2, -2))
sketch2.addConstraint(Sketcher.Constraint("Symmetric", 7, 2, 26, 2, -2))
sketch2.addConstraint(Sketcher.Constraint("Symmetric", 5, 2, 28, 2, -2))
sketch2.addConstraint(Sketcher.Constraint("Symmetric", 3, 2, 30, 2, -2))
sketch2.addConstraint(Sketcher.Constraint("Horizontal", 7, 2, 10, 2))
sketch2.addConstraint(Sketcher.Constraint("Horizontal", 5, 2, 12, 2))
sketch2.addConstraint(Sketcher.Constraint("Horizontal", 3, 2, 14, 2))
sketch2.addConstraint(Sketcher.Constraint("Vertical", 4, 2, 7, 2))
sketch2.addConstraint(Sketcher.Constraint("Vertical", 10, 2, 13, 2))
sketch2.addConstraint(Sketcher.Constraint("Equal", 7, 11))
sketch2.addConstraint(Sketcher.Constraint("Equal", 3, 15))
sketch2.addConstraint(Sketcher.Constraint("DistanceY", 4, 2, 4, 1, 4.0))
sketch2.addConstraint(Sketcher.Constraint("DistanceY", 6, 2, 6, 1, 3.0))
sketch2.addConstraint(Sketcher.Constraint("DistanceX", 1, 1, 1, 2, 6.2))
sketch2.addConstraint(Sketcher.Constraint("DistanceX", 3, 2, 3, 1, 1.5))
sketch2.addConstraint(Sketcher.Constraint("DistanceX", 5, 1, 5, 2, 1.4))
sketch2.addConstraint(Sketcher.Constraint("DistanceY", 0, 1, 0, 2, 4.1))
sketch2.addConstraint(Sketcher.Constraint("DistanceY", 8, 2, 8, 1, 3.9))
sketch2.addConstraint(Sketcher.Constraint("DistanceX", 0, 2, -1, 1, 23.0))
sketch2.addConstraint(Sketcher.Constraint("DistanceY", -1, 1, 0, 2, 85.0))
pocket1 = body.newObject("PartDesign::Pocket", "Pocket")
pocket1.Profile = sketch2
pocket1.Type = "ThroughAll"
pocket1.Reversed = True

sketch3 = body.newObject("Sketcher::SketchObject", "Sketch002")
sketch3.AttachmentSupport = (doc.getObject("XY_Plane"), [""])
sketch3.MapMode = "FlatFace"
sketch3.AttachmentOffset = App.Placement(Vector(0, 0, 4), App.Rotation())
sketch3.addGeometry(Part.LineSegment(Vector(-33.9, 65, 0), Vector(-33.9, 45.2, 0)), False)
sketch3.addGeometry(Part.LineSegment(Vector(-33.9, 45.2, 0), Vector(-29.9, 45.2, 0)), False)
sketch3.addGeometry(Part.LineSegment(Vector(-29.9, 45.2, 0), Vector(-29.9, 65, 0)), False)
sketch3.addGeometry(Part.LineSegment(Vector(-29.9, 65, 0), Vector(-33.9, 65, 0)), False)
sketch3.addGeometry(Part.LineSegment(Vector(-33.9, 25, 0), Vector(-33.9, 5.2, 0)), False)
sketch3.addGeometry(Part.LineSegment(Vector(-33.9, 5.2, 0), Vector(-29.9, 5.2, 0)), False)
sketch3.addGeometry(Part.LineSegment(Vector(-29.9, 5.2, 0), Vector(-29.9, 25, 0)), False)
sketch3.addGeometry(Part.LineSegment(Vector(-29.9, 25, 0), Vector(-33.9, 25, 0)), False)
sketch3.addGeometry(Part.LineSegment(Vector(-33.9, -15, 0), Vector(-33.9, -34.8, 0)), False)
sketch3.addGeometry(Part.LineSegment(Vector(-33.9, -34.8, 0), Vector(-29.9, -34.8, 0)), False)
sketch3.addGeometry(Part.LineSegment(Vector(-29.9, -34.8, 0), Vector(-29.9, -15, 0)), False)
sketch3.addGeometry(Part.LineSegment(Vector(-29.9, -15, 0), Vector(-33.9, -15, 0)), False)
sketch3.addGeometry(Part.LineSegment(Vector(-33.9, -55, 0), Vector(-33.9, -74.8, 0)), False)
sketch3.addGeometry(Part.LineSegment(Vector(-33.9, -74.8, 0), Vector(-29.9, -74.8, 0)), False)
sketch3.addGeometry(Part.LineSegment(Vector(-29.9, -74.8, 0), Vector(-29.9, -55, 0)), False)
sketch3.addGeometry(Part.LineSegment(Vector(-29.9, -55, 0), Vector(-33.9, -55, 0)), False)
sketch3.addConstraint(Sketcher.Constraint("Coincident", 0, 2, 1, 1))
sketch3.addConstraint(Sketcher.Constraint("Coincident", 1, 2, 2, 1))
sketch3.addConstraint(Sketcher.Constraint("Coincident", 2, 2, 3, 1))
sketch3.addConstraint(Sketcher.Constraint("Coincident", 3, 2, 0, 1))
sketch3.addConstraint(Sketcher.Constraint("Coincident", 4, 2, 5, 1))
sketch3.addConstraint(Sketcher.Constraint("Coincident", 5, 2, 6, 1))
sketch3.addConstraint(Sketcher.Constraint("Coincident", 6, 2, 7, 1))
sketch3.addConstraint(Sketcher.Constraint("Coincident", 7, 2, 4, 1))
sketch3.addConstraint(Sketcher.Constraint("Coincident", 8, 2, 9, 1))
sketch3.addConstraint(Sketcher.Constraint("Coincident", 9, 2, 10, 1))
sketch3.addConstraint(Sketcher.Constraint("Coincident", 10, 2, 11, 1))
sketch3.addConstraint(Sketcher.Constraint("Coincident", 11, 2, 8, 1))
sketch3.addConstraint(Sketcher.Constraint("Coincident", 12, 2, 13, 1))
sketch3.addConstraint(Sketcher.Constraint("Coincident", 13, 2, 14, 1))
sketch3.addConstraint(Sketcher.Constraint("Coincident", 14, 2, 15, 1))
sketch3.addConstraint(Sketcher.Constraint("Coincident", 15, 2, 12, 1))
sketch3.addConstraint(Sketcher.Constraint("Vertical", 0))
sketch3.addConstraint(Sketcher.Constraint("Horizontal", 1))
sketch3.addConstraint(Sketcher.Constraint("Vertical", 2))
sketch3.addConstraint(Sketcher.Constraint("Horizontal", 3))
sketch3.addConstraint(Sketcher.Constraint("Vertical", 4))
sketch3.addConstraint(Sketcher.Constraint("Horizontal", 5))
sketch3.addConstraint(Sketcher.Constraint("Vertical", 6))
sketch3.addConstraint(Sketcher.Constraint("Horizontal", 7))
sketch3.addConstraint(Sketcher.Constraint("Vertical", 8))
sketch3.addConstraint(Sketcher.Constraint("Horizontal", 9))
sketch3.addConstraint(Sketcher.Constraint("Vertical", 10))
sketch3.addConstraint(Sketcher.Constraint("Horizontal", 11))
sketch3.addConstraint(Sketcher.Constraint("Vertical", 12))
sketch3.addConstraint(Sketcher.Constraint("Horizontal", 13))
sketch3.addConstraint(Sketcher.Constraint("Vertical", 14))
sketch3.addConstraint(Sketcher.Constraint("Horizontal", 15))
sketch3.addConstraint(Sketcher.Constraint("Vertical", 3, 2, 4, 2))
sketch3.addConstraint(Sketcher.Constraint("Vertical", 2, 2, 5, 2))
sketch3.addConstraint(Sketcher.Constraint("Vertical", 7, 2, 8, 2))
sketch3.addConstraint(Sketcher.Constraint("Vertical", 6, 2, 9, 2))
sketch3.addConstraint(Sketcher.Constraint("Vertical", 11, 2, 12, 2))
sketch3.addConstraint(Sketcher.Constraint("Vertical", 10, 2, 13, 2))
sketch3.addConstraint(Sketcher.Constraint("Equal", 2, 4))
sketch3.addConstraint(Sketcher.Constraint("Equal", 6, 8))
sketch3.addConstraint(Sketcher.Constraint("Equal", 10, 12))
sketch3.addConstraint(Sketcher.Constraint("DistanceX", 1, 1, 1, 2, 4.0))
sketch3.addConstraint(Sketcher.Constraint("DistanceY", 0, 2, 0, 1, 19.8))
sketch3.addConstraint(Sketcher.Constraint("DistanceY", -1, 1, 2, 2, 65.0))
sketch3.addConstraint(Sketcher.Constraint("DistanceY", -1, 1, 6, 2, 25.0))
sketch3.addConstraint(Sketcher.Constraint("DistanceY", 10, 2, -1, 1, 15.0))
sketch3.addConstraint(Sketcher.Constraint("DistanceY", 14, 2, -1, 1, 55.0))
sketch3.addConstraint(Sketcher.Constraint("DistanceX", 0, 2, -1, 1, 33.9))
pad2 = body.newObject("PartDesign::Pad", "Pad001")
pad2.Profile = sketch3
pad2.Length = 4
pad2.Reversed = True

sketch4 = body.newObject("Sketcher::SketchObject", "Sketch003")
sketch4.AttachmentSupport = (doc.getObject("XY_Plane"), [""])
sketch4.MapMode = "FlatFace"
sketch4.AttachmentOffset = App.Placement(Vector(0, 0, 4), App.Rotation())
sketch4.addGeometry(Part.LineSegment(Vector(5, 30, 0), Vector(-5, 30, 0)), False)
sketch4.addGeometry(Part.ArcOfCircle(Part.Circle(Vector(-5, 20, 0), Vector(0, 0, 1), 10), math.radians(90), math.radians(180)), False)
sketch4.addGeometry(Part.LineSegment(Vector(-15, 20, 0), Vector(-15, -20, 0)), False)
sketch4.addGeometry(Part.ArcOfCircle(Part.Circle(Vector(-5, -20, 0), Vector(0, 0, 1), 10), math.radians(180), math.radians(270)), False)
sketch4.addGeometry(Part.LineSegment(Vector(-5, -30, 0), Vector(5, -30, 0)), False)
sketch4.addGeometry(Part.ArcOfCircle(Part.Circle(Vector(5, -20, 0), Vector(0, 0, 1), 10), math.radians(-90), math.radians(0)), False)
sketch4.addGeometry(Part.LineSegment(Vector(15, -20, 0), Vector(15, 20, 0)), False)
sketch4.addGeometry(Part.ArcOfCircle(Part.Circle(Vector(5, 20, 0), Vector(0, 0, 1), 10), math.radians(0), math.radians(90)), False)
sketch4.addConstraint(Sketcher.Constraint("Tangent", 0, 2, 1, 1))
sketch4.addConstraint(Sketcher.Constraint("Tangent", 1, 2, 2, 1))
sketch4.addConstraint(Sketcher.Constraint("Tangent", 2, 2, 3, 1))
sketch4.addConstraint(Sketcher.Constraint("Tangent", 3, 2, 4, 1))
sketch4.addConstraint(Sketcher.Constraint("Tangent", 4, 2, 5, 1))
sketch4.addConstraint(Sketcher.Constraint("Tangent", 5, 2, 6, 1))
sketch4.addConstraint(Sketcher.Constraint("Tangent", 6, 2, 7, 1))
sketch4.addConstraint(Sketcher.Constraint("Tangent", 7, 2, 0, 1))
sketch4.addConstraint(Sketcher.Constraint("Horizontal", 0))
sketch4.addConstraint(Sketcher.Constraint("Vertical", 2))
sketch4.addConstraint(Sketcher.Constraint("Horizontal", 4))
sketch4.addConstraint(Sketcher.Constraint("Vertical", 6))
sketch4.addConstraint(Sketcher.Constraint("Equal", 1, 3))
sketch4.addConstraint(Sketcher.Constraint("Equal", 3, 5))
sketch4.addConstraint(Sketcher.Constraint("Equal", 5, 7))
sketch4.addConstraint(Sketcher.Constraint("Symmetric", 1, 3, 5, 3, -1, 1))
sketch4.addConstraint(Sketcher.Constraint("Radius", 1, 10.0))
sketch4.addConstraint(Sketcher.Constraint("DistanceX", 0, 2, 0, 1, 10.0))
sketch4.addConstraint(Sketcher.Constraint("DistanceY", 2, 2, 2, 1, 40.0))
pocket2 = body.newObject("PartDesign::Pocket", "Pocket001")
pocket2.Profile = sketch4
pocket2.Type = "ThroughAll"

doc.recompute()
